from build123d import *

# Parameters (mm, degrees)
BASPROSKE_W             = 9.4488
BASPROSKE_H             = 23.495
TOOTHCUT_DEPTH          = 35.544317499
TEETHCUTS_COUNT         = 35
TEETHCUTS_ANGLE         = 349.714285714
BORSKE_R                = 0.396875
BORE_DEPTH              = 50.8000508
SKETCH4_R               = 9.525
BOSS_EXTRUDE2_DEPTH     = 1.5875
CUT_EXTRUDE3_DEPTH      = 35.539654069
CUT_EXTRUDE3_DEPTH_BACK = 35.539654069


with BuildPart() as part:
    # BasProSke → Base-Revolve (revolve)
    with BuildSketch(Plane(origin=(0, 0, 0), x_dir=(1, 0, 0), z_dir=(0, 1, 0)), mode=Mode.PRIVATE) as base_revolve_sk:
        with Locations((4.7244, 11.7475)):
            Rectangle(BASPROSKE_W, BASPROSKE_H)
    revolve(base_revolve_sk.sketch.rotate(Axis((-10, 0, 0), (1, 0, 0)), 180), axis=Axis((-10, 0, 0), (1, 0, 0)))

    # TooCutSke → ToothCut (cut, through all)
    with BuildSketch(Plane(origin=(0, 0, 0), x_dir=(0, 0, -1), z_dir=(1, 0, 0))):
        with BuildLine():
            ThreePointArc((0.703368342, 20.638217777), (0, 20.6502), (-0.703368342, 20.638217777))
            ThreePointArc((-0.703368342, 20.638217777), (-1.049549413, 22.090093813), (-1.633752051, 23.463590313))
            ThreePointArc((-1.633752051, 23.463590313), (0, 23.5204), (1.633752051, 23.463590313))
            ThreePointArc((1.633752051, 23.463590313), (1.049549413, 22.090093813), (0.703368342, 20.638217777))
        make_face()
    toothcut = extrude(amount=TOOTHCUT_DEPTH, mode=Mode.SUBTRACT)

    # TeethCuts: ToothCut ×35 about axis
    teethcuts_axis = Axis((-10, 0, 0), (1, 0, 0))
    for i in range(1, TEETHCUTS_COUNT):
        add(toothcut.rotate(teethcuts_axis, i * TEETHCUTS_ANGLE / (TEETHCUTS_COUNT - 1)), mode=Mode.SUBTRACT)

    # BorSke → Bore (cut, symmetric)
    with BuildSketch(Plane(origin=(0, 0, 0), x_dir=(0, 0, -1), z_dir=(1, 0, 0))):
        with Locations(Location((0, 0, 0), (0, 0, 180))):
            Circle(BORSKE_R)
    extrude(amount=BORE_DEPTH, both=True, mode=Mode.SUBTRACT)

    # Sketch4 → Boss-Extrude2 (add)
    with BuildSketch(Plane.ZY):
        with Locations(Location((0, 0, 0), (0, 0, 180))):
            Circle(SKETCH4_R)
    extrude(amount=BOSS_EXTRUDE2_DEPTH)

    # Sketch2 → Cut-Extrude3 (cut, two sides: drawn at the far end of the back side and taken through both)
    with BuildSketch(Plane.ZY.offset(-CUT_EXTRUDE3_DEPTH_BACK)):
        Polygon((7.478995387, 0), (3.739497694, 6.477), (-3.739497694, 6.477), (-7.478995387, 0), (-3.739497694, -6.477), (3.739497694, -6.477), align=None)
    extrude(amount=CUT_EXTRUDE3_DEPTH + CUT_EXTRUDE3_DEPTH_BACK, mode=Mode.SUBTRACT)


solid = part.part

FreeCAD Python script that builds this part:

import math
import FreeCAD as App
import Part
import Sketcher
Q = App.Units.Quantity


def add_polygon(sketch, points):
    """Adds a closed chain of lines whose ends are joined by coincident constraints."""
    first, n = sketch.GeometryCount, len(points)
    for a, b in zip(points, points[1:] + points[:1]):
        sketch.addGeometry(Part.LineSegment(App.Vector(*a, 0), App.Vector(*b, 0)), False)
    for i in range(n):
        sketch.addConstraint(Sketcher.Constraint("Coincident", first + i, 2, first + (i + 1) % n, 1))

doc = App.newDocument("Part")
body = doc.addObject("PartDesign::Body", "Body")

# Sketch on XZ plane
sketch1 = body.newObject("Sketcher::SketchObject", "Sketch")
sketch1.AttachmentSupport = (doc.getObject("XZ_Plane"), [""])
sketch1.MapMode = "FlatFace"
add_polygon(sketch1, [(0, -23), (0, 0), (9, 0), (9, -23)])  # lines 0-3
sketch1.addConstraint([
    Sketcher.Constraint("Vertical", 0),
    Sketcher.Constraint("Horizontal", 1),
    Sketcher.Constraint("Vertical", 2),
    Sketcher.Constraint("Horizontal", 3),
    Sketcher.Constraint("Coincident", 0, 2, -1, 1),
    Sketcher.Constraint("DistanceX", 1, 1, 1, 2, Q("0.372 in")),
    Sketcher.Constraint("DistanceY", 0, 1, 0, 2, Q("0.925 in")),
])
revolution = body.newObject("PartDesign::Revolution", "Revolution")
revolution.Profile = sketch1
revolution.ReferenceAxis = (sketch1, ["H_Axis"])
revolution.Angle = 360

# Sketch on YZ plane
sketch2 = body.newObject("Sketcher::SketchObject", "Sketch001")
sketch2.AttachmentSupport = (doc.getObject("YZ_Plane"), [""])
sketch2.MapMode = "FlatFace"
sketch2.addGeometry([
    Part.ArcOfCircle(Part.Circle(App.Vector(0, 0, 0), App.Vector(0, 0, 1), 20.7), math.radians(-1.95), math.radians(1.95)),
    Part.ArcOfCircle(Part.Circle(App.Vector(19.3, -9.5, 0), App.Vector(0, 0, 1), 8.9), math.radians(62.14), math.radians(81.4)),
    Part.ArcOfCircle(Part.Circle(App.Vector(0, 0, 0), App.Vector(0, 0, 1), 23.5), math.radians(-3.98), math.radians(3.98)),
    Part.ArcOfCircle(Part.Circle(App.Vector(19.3, 9.5, 0), App.Vector(0, 0, 1), 8.9), math.radians(-81.4), math.radians(-62.14)),
], False)
sketch2.addConstraint([
    Sketcher.Constraint("Coincident", 0, 1, 1, 2),
    Sketcher.Constraint("Coincident", 1, 1, 2, 1),
    Sketcher.Constraint("Coincident", 2, 2, 3, 2),
    Sketcher.Constraint("Coincident", 3, 1, 0, 2),
    Sketcher.Constraint("Coincident", 0, 3, -1, 1),
    Sketcher.Constraint("Coincident", 2, 3, -1, 1),
    Sketcher.Constraint("Equal", 1, 3),
    Sketcher.Constraint("Symmetric", 1, 3, 3, 3, -1),
    Sketcher.Constraint("Radius", 1, Q("0.35 in")),
    Sketcher.Constraint("Radius", 0, Q("0.813 in")),
    Sketcher.Constraint("Radius", 2, Q("0.926 in")),
    Sketcher.Constraint("DistanceX", -1, 1, 1, 3, 19.30953),
    Sketcher.Constraint("DistanceY", 0, 1, -1, 1, 0.703368),
])
pocket1 = body.newObject("PartDesign::Pocket", "Pocket")
pocket1.Profile = sketch2
pocket1.Type = "ThroughAll"
pocket1.Reversed = True
doc.recompute()

polarpattern = body.newObject("PartDesign::PolarPattern", "PolarPattern")
polarpattern.Originals = [pocket1]
polarpattern.Axis = (doc.getObject("X_Axis"), [""])
polarpattern.Angle = 360
polarpattern.Occurrences = 35
body.Tip = polarpattern

# Sketch on YZ plane
sketch3 = body.newObject("Sketcher::SketchObject", "Sketch002")
sketch3.AttachmentSupport = (doc.getObject("YZ_Plane"), [""])
sketch3.MapMode = "FlatFace"
sketch3.addGeometry(Part.Circle(App.Vector(0, 0, 0), App.Vector(0, 0, 1), 0.4), False)
sketch3.addConstraint([
    Sketcher.Constraint("Coincident", 0, 3, -1, 1),
    Sketcher.Constraint("Diameter", 0, Q("0.03125 in")),
])
pocket2 = body.newObject("PartDesign::Pocket", "Pocket001")
pocket2.Profile = sketch3
pocket2.Length = 101.600102
pocket2.Midplane = True

# Sketch on YZ plane
sketch4 = body.newObject("Sketcher::SketchObject", "Sketch003")
sketch4.AttachmentSupport = (doc.getObject("YZ_Plane"), [""])
sketch4.MapMode = "FlatFace"
sketch4.addGeometry(Part.Circle(App.Vector(0, 0, 0), App.Vector(0, 0, 1), 10), False)
sketch4.addConstraint([
    Sketcher.Constraint("Coincident", 0, 3, -1, 1),
    Sketcher.Constraint("Diameter", 0, Q("0.75 in")),
])
pad1 = body.newObject("PartDesign::Pad", "Pad")
pad1.Profile = sketch4
pad1.Length = Q("0.0625 in")
pad1.Reversed = True

# Sketch on YZ plane
sketch5 = body.newObject("Sketcher::SketchObject", "Sketch004")
sketch5.AttachmentSupport = (doc.getObject("YZ_Plane"), [""])
sketch5.MapMode = "FlatFace"
add_polygon(sketch5, [(0, 7), (6, 4), (6, -4), (0, -7), (-6, -4), (-6, 4)])  # lines 0-5
sketch5.addConstraint([
    Sketcher.Constraint("Vertical", 1),
    Sketcher.Constraint("Vertical", 4),
    Sketcher.Constraint("Symmetric", 0, 2, 3, 2, -1, 1),
    Sketcher.Constraint("Symmetric", 2, 2, 5, 2, -1, 1),
    Sketcher.Constraint("PointOnObject", 2, 2, -2),
    Sketcher.Constraint("Parallel", 2, 5),
    Sketcher.Constraint("Horizontal", 1, 2, 3, 2),
    Sketcher.Constraint("Angle", 0, Q("-30 deg")),
    Sketcher.Constraint("DistanceX", 3, 2, 1, 2, Q("0.51 in")),
    Sketcher.Constraint("DistanceY", 1, 2, 1, 1, 7.478995),
])
pocket3 = body.newObject("PartDesign::Pocket", "Pocket002")
pocket3.Profile = sketch5
pocket3.Type = "ThroughAll"
pocket3.Midplane = True

doc.recompute()
